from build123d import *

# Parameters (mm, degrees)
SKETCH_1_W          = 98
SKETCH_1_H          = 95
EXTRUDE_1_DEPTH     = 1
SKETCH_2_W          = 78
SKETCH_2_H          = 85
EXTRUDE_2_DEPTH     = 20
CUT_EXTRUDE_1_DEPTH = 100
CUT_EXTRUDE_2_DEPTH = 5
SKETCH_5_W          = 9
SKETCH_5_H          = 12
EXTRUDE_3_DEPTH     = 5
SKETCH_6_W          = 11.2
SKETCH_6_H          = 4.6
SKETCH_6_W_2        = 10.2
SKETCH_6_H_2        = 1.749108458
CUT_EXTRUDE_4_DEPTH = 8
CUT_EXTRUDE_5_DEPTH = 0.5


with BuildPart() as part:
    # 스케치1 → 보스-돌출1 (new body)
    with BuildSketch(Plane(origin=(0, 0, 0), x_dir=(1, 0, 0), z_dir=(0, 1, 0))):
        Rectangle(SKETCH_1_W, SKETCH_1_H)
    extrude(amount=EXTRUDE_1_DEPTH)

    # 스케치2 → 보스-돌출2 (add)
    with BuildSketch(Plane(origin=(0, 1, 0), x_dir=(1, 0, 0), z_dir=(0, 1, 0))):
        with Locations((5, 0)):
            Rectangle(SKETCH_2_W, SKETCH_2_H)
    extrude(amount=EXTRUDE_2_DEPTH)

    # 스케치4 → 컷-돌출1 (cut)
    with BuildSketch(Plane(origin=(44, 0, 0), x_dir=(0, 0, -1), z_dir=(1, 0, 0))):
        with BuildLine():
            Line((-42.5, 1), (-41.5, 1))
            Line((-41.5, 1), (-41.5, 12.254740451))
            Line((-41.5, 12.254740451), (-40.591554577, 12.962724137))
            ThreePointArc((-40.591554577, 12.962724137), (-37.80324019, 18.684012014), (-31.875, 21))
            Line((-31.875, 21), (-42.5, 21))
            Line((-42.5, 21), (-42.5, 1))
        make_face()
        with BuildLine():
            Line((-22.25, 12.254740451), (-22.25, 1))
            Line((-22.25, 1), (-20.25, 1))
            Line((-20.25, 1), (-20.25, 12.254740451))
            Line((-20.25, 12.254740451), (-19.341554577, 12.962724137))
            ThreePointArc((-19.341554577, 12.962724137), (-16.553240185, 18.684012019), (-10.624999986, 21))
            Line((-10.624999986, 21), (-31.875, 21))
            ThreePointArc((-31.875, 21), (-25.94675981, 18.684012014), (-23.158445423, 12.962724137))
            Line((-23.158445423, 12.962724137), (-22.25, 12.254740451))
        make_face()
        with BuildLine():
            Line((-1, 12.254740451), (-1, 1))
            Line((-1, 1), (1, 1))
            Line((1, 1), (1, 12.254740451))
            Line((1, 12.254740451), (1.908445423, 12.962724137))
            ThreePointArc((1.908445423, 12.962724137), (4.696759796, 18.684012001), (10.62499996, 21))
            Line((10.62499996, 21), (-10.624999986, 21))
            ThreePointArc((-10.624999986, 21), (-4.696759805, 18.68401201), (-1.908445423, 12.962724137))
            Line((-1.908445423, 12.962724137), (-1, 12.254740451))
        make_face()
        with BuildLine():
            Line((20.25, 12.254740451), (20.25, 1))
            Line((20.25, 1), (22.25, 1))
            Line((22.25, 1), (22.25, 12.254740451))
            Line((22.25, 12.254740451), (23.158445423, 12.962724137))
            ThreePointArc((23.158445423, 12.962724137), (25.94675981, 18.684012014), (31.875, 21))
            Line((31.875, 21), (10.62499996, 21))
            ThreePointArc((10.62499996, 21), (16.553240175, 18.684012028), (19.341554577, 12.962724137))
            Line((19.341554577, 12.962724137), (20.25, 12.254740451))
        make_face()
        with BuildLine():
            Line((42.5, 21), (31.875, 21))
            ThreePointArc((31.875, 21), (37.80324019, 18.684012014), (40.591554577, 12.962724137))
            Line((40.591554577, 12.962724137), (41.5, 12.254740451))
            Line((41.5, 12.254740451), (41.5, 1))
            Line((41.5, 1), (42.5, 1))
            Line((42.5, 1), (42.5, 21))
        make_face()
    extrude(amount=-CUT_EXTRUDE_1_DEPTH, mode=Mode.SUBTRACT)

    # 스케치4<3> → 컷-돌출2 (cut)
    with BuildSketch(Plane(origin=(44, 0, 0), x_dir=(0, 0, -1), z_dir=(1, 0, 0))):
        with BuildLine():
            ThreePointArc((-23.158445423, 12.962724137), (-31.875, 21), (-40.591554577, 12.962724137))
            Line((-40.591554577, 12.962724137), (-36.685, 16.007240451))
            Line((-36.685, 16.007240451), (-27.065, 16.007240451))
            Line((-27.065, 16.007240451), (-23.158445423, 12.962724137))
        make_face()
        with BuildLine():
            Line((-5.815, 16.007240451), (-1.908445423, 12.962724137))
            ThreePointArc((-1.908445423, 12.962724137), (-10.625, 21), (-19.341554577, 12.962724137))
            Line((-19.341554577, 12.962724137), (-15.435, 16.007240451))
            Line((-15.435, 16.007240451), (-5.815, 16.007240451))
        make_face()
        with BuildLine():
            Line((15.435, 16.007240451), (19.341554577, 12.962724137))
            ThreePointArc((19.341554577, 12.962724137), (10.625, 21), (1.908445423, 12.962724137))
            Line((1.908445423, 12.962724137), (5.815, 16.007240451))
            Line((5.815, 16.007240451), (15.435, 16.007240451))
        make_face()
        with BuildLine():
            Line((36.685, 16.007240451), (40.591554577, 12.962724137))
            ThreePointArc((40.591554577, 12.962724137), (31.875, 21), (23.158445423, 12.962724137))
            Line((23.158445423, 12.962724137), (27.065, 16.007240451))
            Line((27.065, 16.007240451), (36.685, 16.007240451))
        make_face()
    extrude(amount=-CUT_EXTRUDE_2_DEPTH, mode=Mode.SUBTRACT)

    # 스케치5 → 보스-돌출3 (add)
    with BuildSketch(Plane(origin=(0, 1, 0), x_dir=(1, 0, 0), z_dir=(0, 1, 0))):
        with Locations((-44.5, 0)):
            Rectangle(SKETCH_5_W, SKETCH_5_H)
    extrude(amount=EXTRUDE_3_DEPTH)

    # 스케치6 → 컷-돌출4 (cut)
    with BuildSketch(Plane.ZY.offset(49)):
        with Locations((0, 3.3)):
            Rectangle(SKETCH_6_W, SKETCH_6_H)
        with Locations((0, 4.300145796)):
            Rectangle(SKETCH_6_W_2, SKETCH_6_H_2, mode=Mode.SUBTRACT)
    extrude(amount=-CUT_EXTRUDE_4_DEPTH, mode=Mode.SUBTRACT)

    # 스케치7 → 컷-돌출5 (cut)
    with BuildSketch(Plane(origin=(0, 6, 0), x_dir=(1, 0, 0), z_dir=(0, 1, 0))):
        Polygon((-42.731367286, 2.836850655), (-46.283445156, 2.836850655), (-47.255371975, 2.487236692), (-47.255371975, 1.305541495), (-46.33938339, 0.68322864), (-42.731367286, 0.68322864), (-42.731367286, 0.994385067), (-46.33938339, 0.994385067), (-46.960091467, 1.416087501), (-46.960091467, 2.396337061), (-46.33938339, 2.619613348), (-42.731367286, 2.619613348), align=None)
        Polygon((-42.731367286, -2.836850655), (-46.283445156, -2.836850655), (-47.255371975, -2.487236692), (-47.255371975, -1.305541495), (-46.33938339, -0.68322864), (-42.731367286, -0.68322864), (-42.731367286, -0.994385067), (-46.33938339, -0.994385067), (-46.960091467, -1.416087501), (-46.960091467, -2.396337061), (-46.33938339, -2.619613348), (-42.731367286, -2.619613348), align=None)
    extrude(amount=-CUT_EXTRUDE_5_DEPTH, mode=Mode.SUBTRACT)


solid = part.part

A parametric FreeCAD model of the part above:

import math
import FreeCAD as App
import Part
import Sketcher

V = App.Vector
Q = App.Units.Quantity


def add_polygon(sketch, points):
    """Adds a closed chain of lines whose ends are joined by coincident constraints."""
    first, n = sketch.GeometryCount, len(points)
    for a, b in zip(points, points[1:] + points[:1]):
        sketch.addGeometry(Part.LineSegment(App.Vector(*a, 0), App.Vector(*b, 0)), False)
    for i in range(n):
        sketch.addConstraint(Sketcher.Constraint("Coincident", first + i, 2, first + (i + 1) % n, 1))

doc = App.newDocument("Part")
body = doc.addObject("PartDesign::Body", "Body")

# Sketch on XZ plane
sketch1 = body.newObject("Sketcher::SketchObject", "Sketch")
sketch1.AttachmentSupport = (doc.getObject("XZ_Plane"), [""])
sketch1.MapMode = "FlatFace"
add_polygon(sketch1, [(-49, -48), (-49, 48), (49, 48), (49, -48)])  # lines 0-3
sketch1.addConstraint([
    Sketcher.Constraint("Vertical", 0),
    Sketcher.Constraint("Horizontal", 1),
    Sketcher.Constraint("Vertical", 2),
    Sketcher.Constraint("Horizontal", 3),
    Sketcher.Constraint("Symmetric", 0, 2, 2, 2, -1, 1),
    Sketcher.Constraint("DistanceX", 1, 1, 1, 2, Q("98 mm")),
    Sketcher.Constraint("DistanceY", 0, 1, 0, 2, Q("95 mm")),
])
pad1 = body.newObject("PartDesign::Pad", "Pad")
pad1.Profile = sketch1
pad1.Length = 1
pad1.Reversed = True

# Sketch on XZ plane
sketch2 = body.newObject("Sketcher::SketchObject", "Sketch001")
sketch2.AttachmentSupport = (doc.getObject("XZ_Plane"), [""])
sketch2.MapMode = "FlatFace"
sketch2.AttachmentOffset = App.Placement(V(0, 0, -1), App.Rotation())
add_polygon(sketch2, [(-34, -42), (-34, 42), (44, 42), (44, -42)])  # lines 0-3
sketch2.addConstraint([
    Sketcher.Constraint("Vertical", 0),
    Sketcher.Constraint("Horizontal", 1),
    Sketcher.Constraint("Vertical", 2),
    Sketcher.Constraint("Horizontal", 3),
    Sketcher.Constraint("DistanceX", 1, 1, 1, 2, Q("78 mm")),
    Sketcher.Constraint("DistanceY", 0, 1, 0, 2, Q("85 mm")),
    Sketcher.Constraint("DistanceX", 0, 2, -1, 1, Q("34 mm")),
    Sketcher.Constraint("DistanceY", -1, 1, 0, 2, Q("42.5 mm")),
])
pad2 = body.newObject("PartDesign::Pad", "Pad001")
pad2.Profile = sketch2
pad2.Length = 20
pad2.Reversed = True

# Sketch on YZ plane
sketch3 = body.newObject("Sketcher::SketchObject", "Sketch002")
sketch3.AttachmentSupport = (doc.getObject("YZ_Plane"), [""])
sketch3.MapMode = "FlatFace"
sketch3.AttachmentOffset = App.Placement(V(0, 0, 44), App.Rotation())
sketch3.addGeometry([
    Part.LineSegment(V(1, 42.5, 0), V(1, 41.5, 0)),  # 0
    Part.LineSegment(V(1, 41.5, 0), V(12.3, 41.5, 0)),  # 1
    Part.LineSegment(V(12.3, 41.5, 0), V(13, 40.6, 0)),  # 2
    Part.ArcOfCircle(Part.Circle(V(12.3, 31.9, 0), V(0, 0, 1), 8.7), math.radians(0), math.radians(85)),  # 3
    Part.LineSegment(V(21, 31.9, 0), V(21, 42.5, 0)),  # 4
    Part.LineSegment(V(21, 42.5, 0), V(1, 42.5, 0)),  # 5
    Part.LineSegment(V(12.3, 22.2, 0), V(1, 22.2, 0)),  # 6
    Part.LineSegment(V(1, 22.2, 0), V(1, 20.2, 0)),  # 7
    Part.LineSegment(V(1, 20.2, 0), V(12.3, 20.2, 0)),  # 8
    Part.LineSegment(V(12.3, 20.2, 0), V(13, 19.3, 0)),  # 9
    Part.ArcOfCircle(Part.Circle(V(12.3, 10.6, 0), V(0, 0, 1), 8.7), math.radians(0), math.radians(85)),  # 10
    Part.LineSegment(V(21, 10.6, 0), V(21, 31.9, 0)),  # 11
    Part.ArcOfCircle(Part.Circle(V(12.3, 31.9, 0), V(0, 0, 1), 8.7), math.radians(-85), math.radians(0)),  # 12
    Part.LineSegment(V(13, 23.2, 0), V(12.3, 22.2, 0)),  # 13
    Part.LineSegment(V(12.3, 1, 0), V(1, 1, 0)),  # 14
    Part.LineSegment(V(1, 1, 0), V(1, -1, 0)),  # 15
    Part.LineSegment(V(1, -1, 0), V(12.3, -1, 0)),  # 16
    Part.LineSegment(V(12.3, -1, 0), V(13, -1.9, 0)),  # 17
    Part.ArcOfCircle(Part.Circle(V(12.3, -10.6, 0), V(0, 0, 1), 8.7), math.radians(0), math.radians(85)),  # 18
    Part.LineSegment(V(21, -10.6, 0), V(21, 10.6, 0)),  # 19
    Part.ArcOfCircle(Part.Circle(V(12.3, 10.6, 0), V(0, 0, 1), 8.7), math.radians(-85), math.radians(0)),  # 20
    Part.LineSegment(V(13, 1.9, 0), V(12.3, 1, 0)),  # 21
    Part.LineSegment(V(12.3, -20.2, 0), V(1, -20.2, 0)),  # 22
    Part.LineSegment(V(1, -20.2, 0), V(1, -22.2, 0)),  # 23
    Part.LineSegment(V(1, -22.2, 0), V(12.3, -22.2, 0)),  # 24
    Part.LineSegment(V(12.3, -22.2, 0), V(13, -23.2, 0)),  # 25
    Part.ArcOfCircle(Part.Circle(V(12.3, -31.9, 0), V(0, 0, 1), 8.7), math.radians(0), math.radians(85)),  # 26
    Part.LineSegment(V(21, -31.9, 0), V(21, -10.6, 0)),  # 27
    Part.ArcOfCircle(Part.Circle(V(12.3, -10.6, 0), V(0, 0, 1), 8.7), math.radians(-85), math.radians(0)),  # 28
    Part.LineSegment(V(13, -19.3, 0), V(12.3, -20.2, 0)),  # 29
    Part.LineSegment(V(21, -42.5, 0), V(21, -31.9, 0)),  # 30
    Part.ArcOfCircle(Part.Circle(V(12.3, -31.9, 0), V(0, 0, 1), 8.7), math.radians(-85), math.radians(0)),  # 31
    Part.LineSegment(V(13, -40.6, 0), V(12.3, -41.5, 0)),  # 32
    Part.LineSegment(V(12.3, -41.5, 0), V(1, -41.5, 0)),  # 33
    Part.LineSegment(V(1, -41.5, 0), V(1, -42.5, 0)),  # 34
    Part.LineSegment(V(1, -42.5, 0), V(21, -42.5, 0)),  # 35
], False)
sketch3.addConstraint([
    Sketcher.Constraint("Coincident", 0, 2, 1, 1),
    Sketcher.Constraint("Coincident", 1, 2, 2, 1),
    Sketcher.Constraint("Coincident", 2, 2, 3, 2),
    Sketcher.Constraint("Tangent", 3, 1, 4, 1),
    Sketcher.Constraint("Coincident", 4, 2, 5, 1),
    Sketcher.Constraint("Coincident", 5, 2, 0, 1),
    Sketcher.Constraint("Coincident", 6, 2, 7, 1),
    Sketcher.Constraint("Coincident", 7, 2, 8, 1),
    Sketcher.Constraint("Coincident", 8, 2, 9, 1),
    Sketcher.Constraint("Coincident", 9, 2, 10, 2),
    Sketcher.Constraint("Tangent", 10, 1, 11, 1),
    Sketcher.Constraint("Tangent", 11, 2, 12, 2),
    Sketcher.Constraint("Coincident", 12, 1, 13, 1),
    Sketcher.Constraint("Coincident", 13, 2, 6, 1),
    Sketcher.Constraint("Coincident", 14, 2, 15, 1),
    Sketcher.Constraint("Coincident", 15, 2, 16, 1),
    Sketcher.Constraint("Coincident", 16, 2, 17, 1),
    Sketcher.Constraint("Coincident", 17, 2, 18, 2),
    Sketcher.Constraint("Tangent", 18, 1, 19, 1),
    Sketcher.Constraint("Tangent", 19, 2, 20, 2),
    Sketcher.Constraint("Coincident", 20, 1, 21, 1),
    Sketcher.Constraint("Coincident", 21, 2, 14, 1),
    Sketcher.Constraint("Coincident", 22, 2, 23, 1),
    Sketcher.Constraint("Coincident", 23, 2, 24, 1),
    Sketcher.Constraint("Coincident", 24, 2, 25, 1),
    Sketcher.Constraint("Coincident", 25, 2, 26, 2),
    Sketcher.Constraint("Tangent", 26, 1, 27, 1),
    Sketcher.Constraint("Tangent", 27, 2, 28, 2),
    Sketcher.Constraint("Coincident", 28, 1, 29, 1),
    Sketcher.Constraint("Coincident", 29, 2, 22, 1),
    Sketcher.Constraint("Tangent", 30, 2, 31, 2),
    Sketcher.Constraint("Coincident", 31, 1, 32, 1),
    Sketcher.Constraint("Coincident", 32, 2, 33, 1),
    Sketcher.Constraint("Coincident", 33, 2, 34, 1),
    Sketcher.Constraint("Coincident", 34, 2, 35, 1),
    Sketcher.Constraint("Coincident", 35, 2, 30, 1),
    Sketcher.Constraint("Vertical", 0),
    Sketcher.Constraint("Horizontal", 1),
    Sketcher.Constraint("Vertical", 4),
    Sketcher.Constraint("Horizontal", 5),
    Sketcher.Constraint("Horizontal", 6),
    Sketcher.Constraint("Vertical", 7),
    Sketcher.Constraint("Horizontal", 8),
    Sketcher.Constraint("Vertical", 11),
    Sketcher.Constraint("Horizontal", 14),
    Sketcher.Constraint("Vertical", 15),
    Sketcher.Constraint("Horizontal", 16),
    Sketcher.Constraint("Vertical", 19),
    Sketcher.Constraint("Horizontal", 22),
    Sketcher.Constraint("Vertical", 23),
    Sketcher.Constraint("Horizontal", 24),
    Sketcher.Constraint("Vertical", 27),
    Sketcher.Constraint("Vertical", 30),
    Sketcher.Constraint("Horizontal", 33),
    Sketcher.Constraint("Vertical", 34),
    Sketcher.Constraint("Horizontal", 35),
    Sketcher.Constraint("Coincident", 12, 3, 3, 3),
    Sketcher.Constraint("Coincident", 20, 3, 10, 3),
    Sketcher.Constraint("Coincident", 28, 3, 18, 3),
    Sketcher.Constraint("Coincident", 31, 3, 26, 3),
    Sketcher.Constraint("Equal", 3, 10),
    Sketcher.Constraint("Equal", 10, 12),
    Sketcher.Constraint("Equal", 12, 18),
    Sketcher.Constraint("Equal", 18, 20),
    Sketcher.Constraint("Equal", 20, 26),
    Sketcher.Constraint("Equal", 26, 28),
    Sketcher.Constraint("Equal", 28, 31),
    Sketcher.Constraint("Symmetric", 17, 2, 20, 1, -1),
    Sketcher.Constraint("Symmetric", 16, 2, 21, 2, -1),
    Sketcher.Constraint("Symmetric", 7, 2, 22, 2, -1),
    Sketcher.Constraint("Symmetric", 13, 2, 24, 2, -1),
    Sketcher.Constraint("Symmetric", 12, 1, 25, 2, -1),
    Sketcher.Constraint("Symmetric", 1, 2, 32, 2, -1),
    Sketcher.Constraint("Symmetric", 5, 2, 34, 2, -1),
    Sketcher.Constraint("Parallel", 2, 9),
    Sketcher.Constraint("Parallel", 9, 17),
    Sketcher.Constraint("Parallel", 13, 21),
    Sketcher.Constraint("Parallel", 21, 29),
    Sketcher.Constraint("Parallel", 29, 32),
    Sketcher.Constraint("Vertical", 31, 3, 1, 2),
    Sketcher.Constraint("Vertical", 5, 2, 6, 2),
    Sketcher.Constraint("Vertical", 1, 2, 8, 2),
    Sketcher.Constraint("Vertical", 2, 2, 9, 2),
    Sketcher.Constraint("Vertical", 9, 2, 12, 1),
    Sketcher.Constraint("Vertical", 8, 2, 13, 2),
    Sketcher.Constraint("Vertical", 7, 2, 14, 2),
    Sketcher.Constraint("Vertical", 13, 2, 16, 2),
    Sketcher.Constraint("Vertical", 12, 1, 17, 2),
    Sketcher.Constraint("Vertical", 25, 2, 28, 1),
    Sketcher.Constraint("Equal", 7, 15),
    Sketcher.Constraint("DistanceX", 5, 2, 5, 1, Q("20 mm")),
    Sketcher.Constraint("DistanceY", 0, 2, 0, 1, Q("1 mm")),
    Sketcher.Constraint("DistanceY", 7, 2, 7, 1, Q("2 mm")),
    Sketcher.Constraint("DistanceX", -1, 1, 0, 2, Q("1 mm")),
    Sketcher.Constraint("DistanceY", 11, 1, 11, 2, Q("21.25 mm")),
    Sketcher.Constraint("Radius", 3, Q("8.74526 mm")),
    Sketcher.Constraint("DistanceY", 9, 2, 12, 1, Q("3.816891 mm")),
])
pocket1 = body.newObject("PartDesign::Pocket", "Pocket")
pocket1.Profile = sketch3
pocket1.Length = 100

# Sketch on YZ plane
sketch4 = body.newObject("Sketcher::SketchObject", "Sketch003")
sketch4.AttachmentSupport = (doc.getObject("YZ_Plane"), [""])
sketch4.MapMode = "FlatFace"
sketch4.AttachmentOffset = App.Placement(V(0, 0, 44), App.Rotation())
sketch4.addGeometry([
    Part.ArcOfCircle(Part.Circle(V(12.3, 31.9, 0), V(0, 0, 1), 8.7), math.radians(-85), math.radians(85)),  # 0
    Part.LineSegment(V(13, 40.6, 0), V(16, 36.7, 0)),  # 1
    Part.LineSegment(V(16, 36.7, 0), V(16, 27.1, 0)),  # 2
    Part.LineSegment(V(16, 27.1, 0), V(13, 23.2, 0)),  # 3
    Part.LineSegment(V(16, 5.8, 0), V(13, 1.9, 0)),  # 4
    Part.ArcOfCircle(Part.Circle(V(12.3, 10.6, 0), V(0, 0, 1), 8.7), math.radians(-85), math.radians(85)),  # 5
    Part.LineSegment(V(13, 19.3, 0), V(16, 15.4, 0)),  # 6
    Part.LineSegment(V(16, 15.4, 0), V(16, 5.8, 0)),  # 7
    Part.LineSegment(V(16, -15.4, 0), V(13, -19.3, 0)),  # 8
    Part.ArcOfCircle(Part.Circle(V(12.3, -10.6, 0), V(0, 0, 1), 8.7), math.radians(-85), math.radians(85)),  # 9
    Part.LineSegment(V(13, -1.9, 0), V(16, -5.8, 0)),  # 10
    Part.LineSegment(V(16, -5.8, 0), V(16, -15.4, 0)),  # 11
    Part.LineSegment(V(16, -36.7, 0), V(13, -40.6, 0)),  # 12
    Part.ArcOfCircle(Part.Circle(V(12.3, -31.9, 0), V(0, 0, 1), 8.7), math.radians(-85), math.radians(85)),  # 13
    Part.LineSegment(V(13, -23.2, 0), V(16, -27.1, 0)),  # 14
    Part.LineSegment(V(16, -27.1, 0), V(16, -36.7, 0)),  # 15
], False)
sketch4.addConstraint([
    Sketcher.Constraint("Coincident", 0, 2, 1, 1),
    Sketcher.Constraint("Coincident", 1, 2, 2, 1),
    Sketcher.Constraint("Coincident", 2, 2, 3, 1),
    Sketcher.Constraint("Coincident", 3, 2, 0, 1),
    Sketcher.Constraint("Coincident", 4, 2, 5, 1),
    Sketcher.Constraint("Coincident", 5, 2, 6, 1),
    Sketcher.Constraint("Coincident", 6, 2, 7, 1),
    Sketcher.Constraint("Coincident", 7, 2, 4, 1),
    Sketcher.Constraint("Coincident", 8, 2, 9, 1),
    Sketcher.Constraint("Coincident", 9, 2, 10, 1),
    Sketcher.Constraint("Coincident", 10, 2, 11, 1),
    Sketcher.Constraint("Coincident", 11, 2, 8, 1),
    Sketcher.Constraint("Coincident", 12, 2, 13, 1),
    Sketcher.Constraint("Coincident", 13, 2, 14, 1),
    Sketcher.Constraint("Coincident", 14, 2, 15, 1),
    Sketcher.Constraint("Coincident", 15, 2, 12, 1),
    Sketcher.Constraint("Vertical", 2),
    Sketcher.Constraint("Vertical", 7),
    Sketcher.Constraint("Vertical", 11),
    Sketcher.Constraint("Vertical", 15),
    Sketcher.Constraint("Equal", 0, 5),
    Sketcher.Constraint("Equal", 5, 9),
    Sketcher.Constraint("Equal", 9, 13),
    Sketcher.Constraint("Symmetric", 5, 3, 9, 3, -1),
    Sketcher.Constraint("Symmetric", 0, 3, 13, 3, -1),
    Sketcher.Constraint("Symmetric", 7, 2, 10, 2, -1),
    Sketcher.Constraint("Symmetric", 2, 2, 14, 2, -1),
    Sketcher.Constraint("Parallel", 3, 4),
    Sketcher.Constraint("Parallel", 1, 6),
    Sketcher.Constraint("Parallel", 4, 8),
    Sketcher.Constraint("Parallel", 6, 10),
    Sketcher.Constraint("Parallel", 8, 12),
    Sketcher.Constraint("Parallel", 10, 14),
    Sketcher.Constraint("Vertical", 0, 3, 5, 3),
    Sketcher.Constraint("Vertical", 0, 2, 3, 2),
    Sketcher.Constraint("Vertical", 3, 2, 4, 2),
    Sketcher.Constraint("Vertical", 4, 2, 5, 2),
    Sketcher.Constraint("Vertical", 2, 2, 6, 2),
    Sketcher.Constraint("Vertical", 5, 2, 8, 2),
    Sketcher.Constraint("Vertical", 8, 2, 9, 2),
    Sketcher.Constraint("Vertical", 9, 2, 12, 2),
    Sketcher.Constraint("DistanceY", 2, 2, 2, 1, Q("9.62 mm")),
    Sketcher.Constraint("DistanceY", 9, 3, 0, 3, Q("42.5 mm")),
    Sketcher.Constraint("Radius", 0, Q("8.74526 mm")),
    Sketcher.Constraint("DistanceY", 5, 3, 0, 3, Q("21.25 mm")),
    Sketcher.Constraint("DistanceX", 0, 3, 1, 2, Q("3.7525 mm")),
    Sketcher.Constraint("DistanceX", -1, 1, 0, 3, Q("12.25474 mm")),
    Sketcher.Constraint("DistanceY", 3, 2, 0, 2, Q("17.433109 mm")),
])
pocket2 = body.newObject("PartDesign::Pocket", "Pocket001")
pocket2.Profile = sketch4
pocket2.Length = 5

# Sketch on XZ plane
sketch5 = body.newObject("Sketcher::SketchObject", "Sketch004")
sketch5.AttachmentSupport = (doc.getObject("XZ_Plane"), [""])
sketch5.MapMode = "FlatFace"
sketch5.AttachmentOffset = App.Placement(V(0, 0, -1), App.Rotation())
add_polygon(sketch5, [(-49, -6), (-49, 6), (-40, 6), (-40, -6)])  # lines 0-3
sketch5.addConstraint([
    Sketcher.Constraint("Vertical", 0),
    Sketcher.Constraint("Horizontal", 1),
    Sketcher.Constraint("Vertical", 2),
    Sketcher.Constraint("Horizontal", 3),
    Sketcher.Constraint("DistanceX", 1, 1, 1, 2, Q("9 mm")),
    Sketcher.Constraint("DistanceY", 0, 1, 0, 2, Q("12 mm")),
    Sketcher.Constraint("DistanceX", 0, 2, -1, 1, Q("49 mm")),
    Sketcher.Constraint("DistanceY", -1, 1, 0, 2, Q("6 mm")),
])
pad3 = body.newObject("PartDesign::Pad", "Pad002")
pad3.Profile = sketch5
pad3.Length = 5
pad3.Reversed = True

# Sketch on YZ plane
sketch6 = body.newObject("Sketcher::SketchObject", "Sketch005")
sketch6.AttachmentSupport = (doc.getObject("YZ_Plane"), [""])
sketch6.MapMode = "FlatFace"
sketch6.AttachmentOffset = App.Placement(V(0, 0, -49), App.Rotation())
add_polygon(sketch6, [(5.6, -5.6), (1, -5.6), (1, 5.6), (5.6, 5.6)])  # lines 0-3
add_polygon(sketch6, [(3.4, 5.1), (3.4, -5.1), (5.2, -5.1), (5.2, 5.1)])  # lines 4-7
sketch6.addConstraint([
    Sketcher.Constraint("Horizontal", 0),
    Sketcher.Constraint("Vertical", 1),
    Sketcher.Constraint("Horizontal", 2),
    Sketcher.Constraint("Vertical", 3),
    Sketcher.Constraint("Vertical", 4),
    Sketcher.Constraint("Horizontal", 5),
    Sketcher.Constraint("Vertical", 6),
    Sketcher.Constraint("Horizontal", 7),
    Sketcher.Constraint("DistanceX", 0, 2, 0, 1, Q("4.6 mm")),
    Sketcher.Constraint("DistanceY", 1, 1, 1, 2, Q("11.2 mm")),
    Sketcher.Constraint("DistanceY", 4, 2, 4, 1, Q("10.2 mm")),
    Sketcher.Constraint("DistanceX", -1, 1, 0, 2, Q("1 mm")),
    Sketcher.Constraint("DistanceY", 0, 2, -1, 1, Q("5.6 mm")),
    Sketcher.Constraint("DistanceY", 4, 2, -1, 1, Q("5.1 mm")),
    Sketcher.Constraint("DistanceX", 5, 1, 5, 2, Q("1.749108 mm")),
    Sketcher.Constraint("DistanceX", -1, 1, 5, 2, Q("5.1747 mm")),
])
pocket3 = body.newObject("PartDesign::Pocket", "Pocket002")
pocket3.Profile = sketch6
pocket3.Length = 8
pocket3.Reversed = True

# Sketch on XZ plane
sketch7 = body.newObject("Sketcher::SketchObject", "Sketch006")
sketch7.AttachmentSupport = (doc.getObject("XZ_Plane"), [""])
sketch7.MapMode = "FlatFace"
sketch7.AttachmentOffset = App.Placement(V(0, 0, -6), App.Rotation())
add_polygon(sketch7, [(-42.73, -2.84), (-46.28, -2.84), (-47.26, -2.49), (-47.26, -1.31), (-46.34, -0.68), (-42.73, -0.68), (-42.73, -0.99), (-46.34, -0.99), (-46.96, -1.42), (-46.96, -2.4), (-46.34, -2.62), (-42.73, -2.62)])  # lines 0-11
add_polygon(sketch7, [(-46.28, 2.84), (-42.73, 2.84), (-42.73, 2.62), (-46.34, 2.62), (-46.96, 2.4), (-46.96, 1.42), (-46.34, 0.99), (-42.73, 0.99), (-42.73, 0.68), (-46.34, 0.68), (-47.26, 1.31), (-47.26, 2.49)])  # lines 12-23
sketch7.addConstraint([
    Sketcher.Constraint("Horizontal", 0),
    Sketcher.Constraint("Vertical", 2),
    Sketcher.Constraint("Horizontal", 4),
    Sketcher.Constraint("Vertical", 5),
    Sketcher.Constraint("Horizontal", 6),
    Sketcher.Constraint("Vertical", 8),
    Sketcher.Constraint("Horizontal", 10),
    Sketcher.Constraint("Vertical", 11),
    Sketcher.Constraint("Horizontal", 12),
    Sketcher.Constraint("Vertical", 13),
    Sketcher.Constraint("Horizontal", 14),
    Sketcher.Constraint("Vertical", 16),
    Sketcher.Constraint("Horizontal", 18),
    Sketcher.Constraint("Vertical", 19),
    Sketcher.Constraint("Horizontal", 20),
    Sketcher.Constraint("Vertical", 22),
    Sketcher.Constraint("Symmetric", 11, 2, 12, 2, -1),
    Sketcher.Constraint("Symmetric", 9, 2, 14, 2, -1),
    Sketcher.Constraint("Symmetric", 8, 2, 15, 2, -1),
    Sketcher.Constraint("Symmetric", 6, 2, 17, 2, -1),
    Sketcher.Constraint("Symmetric", 4, 2, 19, 2, -1),
    Sketcher.Constraint("Symmetric", 2, 2, 21, 2, -1),
    Sketcher.Constraint("Parallel", 3, 7),
    Sketcher.Constraint("Parallel", 1, 9),
    Sketcher.Constraint("Parallel", 17, 21),
    Sketcher.Constraint("Parallel", 15, 23),
    Sketcher.Constraint("Vertical", 3, 2, 6, 2),
    Sketcher.Constraint("Vertical", 6, 2, 9, 2),
    Sketcher.Constraint("Vertical", 5, 2, 10, 2),
    Sketcher.Constraint("Vertical", 17, 2, 20, 2),
    Sketcher.Constraint("Vertical", 0, 2, 23, 2),
    Sketcher.Constraint("DistanceY", 5, 2, 13, 2, Q("3.613998 mm")),
    Sketcher.Constraint("DistanceY", 8, 2, 8, 1, Q("0.98025 mm")),
    Sketcher.Constraint("DistanceY", 1, 2, 8, 2, Q("0.0909 mm")),
    Sketcher.Constraint("Distance", 3, Q("1.107388 mm")),
    Sketcher.Constraint("DistanceX", 0, 2, 0, 1, Q("3.552078 mm")),
    Sketcher.Constraint("DistanceX", 4, 1, 4, 2, Q("3.608016 mm")),
    Sketcher.Constraint("DistanceY", 2, 1, 2, 2, Q("1.181695 mm")),
    Sketcher.Constraint("DistanceY", 5, 2, 5, 1, Q("0.311156 mm")),
    Sketcher.Constraint("DistanceY", 11, 2, 11, 1, Q("0.217237 mm")),
    Sketcher.Constraint("DistanceY", 0, 2, -1, 1, Q("2.836851 mm")),
    Sketcher.Constraint("DistanceX", 1, 2, -1, 1, Q("47.255372 mm")),
])
pocket4 = body.newObject("PartDesign::Pocket", "Pocket003")
pocket4.Profile = sketch7
pocket4.Length = 0.5
pocket4.Reversed = True

doc.recompute()
